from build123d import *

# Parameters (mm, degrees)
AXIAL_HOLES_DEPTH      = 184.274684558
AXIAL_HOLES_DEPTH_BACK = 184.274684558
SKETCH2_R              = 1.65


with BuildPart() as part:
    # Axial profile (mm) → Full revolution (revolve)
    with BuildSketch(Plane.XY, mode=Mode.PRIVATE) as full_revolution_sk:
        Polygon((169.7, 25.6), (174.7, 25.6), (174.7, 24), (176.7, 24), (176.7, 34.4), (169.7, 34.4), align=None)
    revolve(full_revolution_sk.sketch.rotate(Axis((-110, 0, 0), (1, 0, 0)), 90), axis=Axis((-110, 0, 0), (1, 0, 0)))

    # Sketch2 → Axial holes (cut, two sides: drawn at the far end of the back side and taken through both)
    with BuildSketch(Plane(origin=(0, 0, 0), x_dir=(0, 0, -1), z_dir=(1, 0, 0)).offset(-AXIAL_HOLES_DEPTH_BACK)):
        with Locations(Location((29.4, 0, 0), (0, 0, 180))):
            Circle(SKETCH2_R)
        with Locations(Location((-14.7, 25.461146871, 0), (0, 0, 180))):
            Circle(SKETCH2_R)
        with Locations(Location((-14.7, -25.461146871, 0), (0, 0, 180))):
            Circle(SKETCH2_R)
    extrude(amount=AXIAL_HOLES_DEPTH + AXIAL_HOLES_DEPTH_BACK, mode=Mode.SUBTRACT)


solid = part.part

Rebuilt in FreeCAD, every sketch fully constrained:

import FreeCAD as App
import Part
import Sketcher
from FreeCAD import Vector
Q = App.Units.Quantity

doc = App.newDocument("Part")
body = doc.addObject("PartDesign::Body", "Body")

# Sketch on XY plane
sketch1 = body.newObject("Sketcher::SketchObject", "Sketch")
sketch1.AttachmentSupport = (doc.getObject("XY_Plane"), [""])
sketch1.MapMode = "FlatFace"
sketch1.addGeometry([
    Part.LineSegment(Vector(169.7, 25.6, 0), Vector(174.7, 25.6, 0)),  # 0
    Part.LineSegment(Vector(174.7, 25.6, 0), Vector(174.7, 24, 0)),  # 1
    Part.LineSegment(Vector(174.7, 24, 0), Vector(176.7, 24, 0)),  # 2
    Part.LineSegment(Vector(176.7, 24, 0), Vector(176.7, 34.4, 0)),  # 3
    Part.LineSegment(Vector(176.7, 34.4, 0), Vector(169.7, 34.4, 0)),  # 4
    Part.LineSegment(Vector(169.7, 34.4, 0), Vector(169.7, 25.6, 0)),  # 5
], False)
sketch1.addConstraint([
    Sketcher.Constraint("Coincident", 0, 2, 1, 1),
    Sketcher.Constraint("Coincident", 1, 2, 2, 1),
    Sketcher.Constraint("Coincident", 2, 2, 3, 1),
    Sketcher.Constraint("Coincident", 3, 2, 4, 1),
    Sketcher.Constraint("Coincident", 4, 2, 5, 1),
    Sketcher.Constraint("Coincident", 5, 2, 0, 1),
    Sketcher.Constraint("Horizontal", 0),
    Sketcher.Constraint("Vertical", 1),
    Sketcher.Constraint("Horizontal", 2),
    Sketcher.Constraint("Vertical", 3),
    Sketcher.Constraint("Horizontal", 4),
    Sketcher.Constraint("Vertical", 5),
    Sketcher.Constraint("DistanceX", 0, 1, 0, 2, Q("5 mm")),
    Sketcher.Constraint("DistanceX", 2, 1, 2, 2, Q("2 mm")),
    Sketcher.Constraint("DistanceY", 1, 2, 1, 1, Q("1.6 mm")),
    Sketcher.Constraint("DistanceY", 3, 1, 3, 2, Q("10.4 mm")),
    Sketcher.Constraint("DistanceY", -1, 1, 1, 2, Q("24 mm")),
    Sketcher.Constraint("DistanceX", -1, 1, 0, 2, Q("174.7 mm")),
])
revolution = body.newObject("PartDesign::Revolution", "Revolution")
revolution.Profile = sketch1
revolution.ReferenceAxis = (sketch1, ["H_Axis"])
revolution.Angle = 360

# Sketch on YZ plane
sketch2 = body.newObject("Sketcher::SketchObject", "Sketch001")
sketch2.AttachmentSupport = (doc.getObject("YZ_Plane"), [""])
sketch2.MapMode = "FlatFace"
sketch2.addGeometry([
    Part.Circle(Vector(0, -29.4, 0), Vector(0, 0, 1), 1.65),
    Part.Circle(Vector(25.461147, 14.7, 0), Vector(0, 0, 1), 1.65),
    Part.Circle(Vector(-25.461147, 14.7, 0), Vector(0, 0, 1), 1.65),
], False)
sketch2.addConstraint([
    Sketcher.Constraint("Equal", 0, 1),
    Sketcher.Constraint("Equal", 1, 2),
    Sketcher.Constraint("Symmetric", 1, 3, 2, 3, -2),
    Sketcher.Constraint("PointOnObject", 0, 3, -2),
    Sketcher.Constraint("Diameter", 0, Q("3.3 mm")),
    Sketcher.Constraint("DistanceY", 0, 3, -1, 1, Q("29.4 mm")),
    Sketcher.Constraint("DistanceY", -1, 1, 1, 3, Q("14.7 mm")),
    Sketcher.Constraint("DistanceX", -1, 1, 1, 3, Q("25.461147 mm")),
])
pocket1 = body.newObject("PartDesign::Pocket", "Pocket")
pocket1.Profile = sketch2
pocket1.Type = "ThroughAll"
pocket1.Midplane = True

doc.recompute()
